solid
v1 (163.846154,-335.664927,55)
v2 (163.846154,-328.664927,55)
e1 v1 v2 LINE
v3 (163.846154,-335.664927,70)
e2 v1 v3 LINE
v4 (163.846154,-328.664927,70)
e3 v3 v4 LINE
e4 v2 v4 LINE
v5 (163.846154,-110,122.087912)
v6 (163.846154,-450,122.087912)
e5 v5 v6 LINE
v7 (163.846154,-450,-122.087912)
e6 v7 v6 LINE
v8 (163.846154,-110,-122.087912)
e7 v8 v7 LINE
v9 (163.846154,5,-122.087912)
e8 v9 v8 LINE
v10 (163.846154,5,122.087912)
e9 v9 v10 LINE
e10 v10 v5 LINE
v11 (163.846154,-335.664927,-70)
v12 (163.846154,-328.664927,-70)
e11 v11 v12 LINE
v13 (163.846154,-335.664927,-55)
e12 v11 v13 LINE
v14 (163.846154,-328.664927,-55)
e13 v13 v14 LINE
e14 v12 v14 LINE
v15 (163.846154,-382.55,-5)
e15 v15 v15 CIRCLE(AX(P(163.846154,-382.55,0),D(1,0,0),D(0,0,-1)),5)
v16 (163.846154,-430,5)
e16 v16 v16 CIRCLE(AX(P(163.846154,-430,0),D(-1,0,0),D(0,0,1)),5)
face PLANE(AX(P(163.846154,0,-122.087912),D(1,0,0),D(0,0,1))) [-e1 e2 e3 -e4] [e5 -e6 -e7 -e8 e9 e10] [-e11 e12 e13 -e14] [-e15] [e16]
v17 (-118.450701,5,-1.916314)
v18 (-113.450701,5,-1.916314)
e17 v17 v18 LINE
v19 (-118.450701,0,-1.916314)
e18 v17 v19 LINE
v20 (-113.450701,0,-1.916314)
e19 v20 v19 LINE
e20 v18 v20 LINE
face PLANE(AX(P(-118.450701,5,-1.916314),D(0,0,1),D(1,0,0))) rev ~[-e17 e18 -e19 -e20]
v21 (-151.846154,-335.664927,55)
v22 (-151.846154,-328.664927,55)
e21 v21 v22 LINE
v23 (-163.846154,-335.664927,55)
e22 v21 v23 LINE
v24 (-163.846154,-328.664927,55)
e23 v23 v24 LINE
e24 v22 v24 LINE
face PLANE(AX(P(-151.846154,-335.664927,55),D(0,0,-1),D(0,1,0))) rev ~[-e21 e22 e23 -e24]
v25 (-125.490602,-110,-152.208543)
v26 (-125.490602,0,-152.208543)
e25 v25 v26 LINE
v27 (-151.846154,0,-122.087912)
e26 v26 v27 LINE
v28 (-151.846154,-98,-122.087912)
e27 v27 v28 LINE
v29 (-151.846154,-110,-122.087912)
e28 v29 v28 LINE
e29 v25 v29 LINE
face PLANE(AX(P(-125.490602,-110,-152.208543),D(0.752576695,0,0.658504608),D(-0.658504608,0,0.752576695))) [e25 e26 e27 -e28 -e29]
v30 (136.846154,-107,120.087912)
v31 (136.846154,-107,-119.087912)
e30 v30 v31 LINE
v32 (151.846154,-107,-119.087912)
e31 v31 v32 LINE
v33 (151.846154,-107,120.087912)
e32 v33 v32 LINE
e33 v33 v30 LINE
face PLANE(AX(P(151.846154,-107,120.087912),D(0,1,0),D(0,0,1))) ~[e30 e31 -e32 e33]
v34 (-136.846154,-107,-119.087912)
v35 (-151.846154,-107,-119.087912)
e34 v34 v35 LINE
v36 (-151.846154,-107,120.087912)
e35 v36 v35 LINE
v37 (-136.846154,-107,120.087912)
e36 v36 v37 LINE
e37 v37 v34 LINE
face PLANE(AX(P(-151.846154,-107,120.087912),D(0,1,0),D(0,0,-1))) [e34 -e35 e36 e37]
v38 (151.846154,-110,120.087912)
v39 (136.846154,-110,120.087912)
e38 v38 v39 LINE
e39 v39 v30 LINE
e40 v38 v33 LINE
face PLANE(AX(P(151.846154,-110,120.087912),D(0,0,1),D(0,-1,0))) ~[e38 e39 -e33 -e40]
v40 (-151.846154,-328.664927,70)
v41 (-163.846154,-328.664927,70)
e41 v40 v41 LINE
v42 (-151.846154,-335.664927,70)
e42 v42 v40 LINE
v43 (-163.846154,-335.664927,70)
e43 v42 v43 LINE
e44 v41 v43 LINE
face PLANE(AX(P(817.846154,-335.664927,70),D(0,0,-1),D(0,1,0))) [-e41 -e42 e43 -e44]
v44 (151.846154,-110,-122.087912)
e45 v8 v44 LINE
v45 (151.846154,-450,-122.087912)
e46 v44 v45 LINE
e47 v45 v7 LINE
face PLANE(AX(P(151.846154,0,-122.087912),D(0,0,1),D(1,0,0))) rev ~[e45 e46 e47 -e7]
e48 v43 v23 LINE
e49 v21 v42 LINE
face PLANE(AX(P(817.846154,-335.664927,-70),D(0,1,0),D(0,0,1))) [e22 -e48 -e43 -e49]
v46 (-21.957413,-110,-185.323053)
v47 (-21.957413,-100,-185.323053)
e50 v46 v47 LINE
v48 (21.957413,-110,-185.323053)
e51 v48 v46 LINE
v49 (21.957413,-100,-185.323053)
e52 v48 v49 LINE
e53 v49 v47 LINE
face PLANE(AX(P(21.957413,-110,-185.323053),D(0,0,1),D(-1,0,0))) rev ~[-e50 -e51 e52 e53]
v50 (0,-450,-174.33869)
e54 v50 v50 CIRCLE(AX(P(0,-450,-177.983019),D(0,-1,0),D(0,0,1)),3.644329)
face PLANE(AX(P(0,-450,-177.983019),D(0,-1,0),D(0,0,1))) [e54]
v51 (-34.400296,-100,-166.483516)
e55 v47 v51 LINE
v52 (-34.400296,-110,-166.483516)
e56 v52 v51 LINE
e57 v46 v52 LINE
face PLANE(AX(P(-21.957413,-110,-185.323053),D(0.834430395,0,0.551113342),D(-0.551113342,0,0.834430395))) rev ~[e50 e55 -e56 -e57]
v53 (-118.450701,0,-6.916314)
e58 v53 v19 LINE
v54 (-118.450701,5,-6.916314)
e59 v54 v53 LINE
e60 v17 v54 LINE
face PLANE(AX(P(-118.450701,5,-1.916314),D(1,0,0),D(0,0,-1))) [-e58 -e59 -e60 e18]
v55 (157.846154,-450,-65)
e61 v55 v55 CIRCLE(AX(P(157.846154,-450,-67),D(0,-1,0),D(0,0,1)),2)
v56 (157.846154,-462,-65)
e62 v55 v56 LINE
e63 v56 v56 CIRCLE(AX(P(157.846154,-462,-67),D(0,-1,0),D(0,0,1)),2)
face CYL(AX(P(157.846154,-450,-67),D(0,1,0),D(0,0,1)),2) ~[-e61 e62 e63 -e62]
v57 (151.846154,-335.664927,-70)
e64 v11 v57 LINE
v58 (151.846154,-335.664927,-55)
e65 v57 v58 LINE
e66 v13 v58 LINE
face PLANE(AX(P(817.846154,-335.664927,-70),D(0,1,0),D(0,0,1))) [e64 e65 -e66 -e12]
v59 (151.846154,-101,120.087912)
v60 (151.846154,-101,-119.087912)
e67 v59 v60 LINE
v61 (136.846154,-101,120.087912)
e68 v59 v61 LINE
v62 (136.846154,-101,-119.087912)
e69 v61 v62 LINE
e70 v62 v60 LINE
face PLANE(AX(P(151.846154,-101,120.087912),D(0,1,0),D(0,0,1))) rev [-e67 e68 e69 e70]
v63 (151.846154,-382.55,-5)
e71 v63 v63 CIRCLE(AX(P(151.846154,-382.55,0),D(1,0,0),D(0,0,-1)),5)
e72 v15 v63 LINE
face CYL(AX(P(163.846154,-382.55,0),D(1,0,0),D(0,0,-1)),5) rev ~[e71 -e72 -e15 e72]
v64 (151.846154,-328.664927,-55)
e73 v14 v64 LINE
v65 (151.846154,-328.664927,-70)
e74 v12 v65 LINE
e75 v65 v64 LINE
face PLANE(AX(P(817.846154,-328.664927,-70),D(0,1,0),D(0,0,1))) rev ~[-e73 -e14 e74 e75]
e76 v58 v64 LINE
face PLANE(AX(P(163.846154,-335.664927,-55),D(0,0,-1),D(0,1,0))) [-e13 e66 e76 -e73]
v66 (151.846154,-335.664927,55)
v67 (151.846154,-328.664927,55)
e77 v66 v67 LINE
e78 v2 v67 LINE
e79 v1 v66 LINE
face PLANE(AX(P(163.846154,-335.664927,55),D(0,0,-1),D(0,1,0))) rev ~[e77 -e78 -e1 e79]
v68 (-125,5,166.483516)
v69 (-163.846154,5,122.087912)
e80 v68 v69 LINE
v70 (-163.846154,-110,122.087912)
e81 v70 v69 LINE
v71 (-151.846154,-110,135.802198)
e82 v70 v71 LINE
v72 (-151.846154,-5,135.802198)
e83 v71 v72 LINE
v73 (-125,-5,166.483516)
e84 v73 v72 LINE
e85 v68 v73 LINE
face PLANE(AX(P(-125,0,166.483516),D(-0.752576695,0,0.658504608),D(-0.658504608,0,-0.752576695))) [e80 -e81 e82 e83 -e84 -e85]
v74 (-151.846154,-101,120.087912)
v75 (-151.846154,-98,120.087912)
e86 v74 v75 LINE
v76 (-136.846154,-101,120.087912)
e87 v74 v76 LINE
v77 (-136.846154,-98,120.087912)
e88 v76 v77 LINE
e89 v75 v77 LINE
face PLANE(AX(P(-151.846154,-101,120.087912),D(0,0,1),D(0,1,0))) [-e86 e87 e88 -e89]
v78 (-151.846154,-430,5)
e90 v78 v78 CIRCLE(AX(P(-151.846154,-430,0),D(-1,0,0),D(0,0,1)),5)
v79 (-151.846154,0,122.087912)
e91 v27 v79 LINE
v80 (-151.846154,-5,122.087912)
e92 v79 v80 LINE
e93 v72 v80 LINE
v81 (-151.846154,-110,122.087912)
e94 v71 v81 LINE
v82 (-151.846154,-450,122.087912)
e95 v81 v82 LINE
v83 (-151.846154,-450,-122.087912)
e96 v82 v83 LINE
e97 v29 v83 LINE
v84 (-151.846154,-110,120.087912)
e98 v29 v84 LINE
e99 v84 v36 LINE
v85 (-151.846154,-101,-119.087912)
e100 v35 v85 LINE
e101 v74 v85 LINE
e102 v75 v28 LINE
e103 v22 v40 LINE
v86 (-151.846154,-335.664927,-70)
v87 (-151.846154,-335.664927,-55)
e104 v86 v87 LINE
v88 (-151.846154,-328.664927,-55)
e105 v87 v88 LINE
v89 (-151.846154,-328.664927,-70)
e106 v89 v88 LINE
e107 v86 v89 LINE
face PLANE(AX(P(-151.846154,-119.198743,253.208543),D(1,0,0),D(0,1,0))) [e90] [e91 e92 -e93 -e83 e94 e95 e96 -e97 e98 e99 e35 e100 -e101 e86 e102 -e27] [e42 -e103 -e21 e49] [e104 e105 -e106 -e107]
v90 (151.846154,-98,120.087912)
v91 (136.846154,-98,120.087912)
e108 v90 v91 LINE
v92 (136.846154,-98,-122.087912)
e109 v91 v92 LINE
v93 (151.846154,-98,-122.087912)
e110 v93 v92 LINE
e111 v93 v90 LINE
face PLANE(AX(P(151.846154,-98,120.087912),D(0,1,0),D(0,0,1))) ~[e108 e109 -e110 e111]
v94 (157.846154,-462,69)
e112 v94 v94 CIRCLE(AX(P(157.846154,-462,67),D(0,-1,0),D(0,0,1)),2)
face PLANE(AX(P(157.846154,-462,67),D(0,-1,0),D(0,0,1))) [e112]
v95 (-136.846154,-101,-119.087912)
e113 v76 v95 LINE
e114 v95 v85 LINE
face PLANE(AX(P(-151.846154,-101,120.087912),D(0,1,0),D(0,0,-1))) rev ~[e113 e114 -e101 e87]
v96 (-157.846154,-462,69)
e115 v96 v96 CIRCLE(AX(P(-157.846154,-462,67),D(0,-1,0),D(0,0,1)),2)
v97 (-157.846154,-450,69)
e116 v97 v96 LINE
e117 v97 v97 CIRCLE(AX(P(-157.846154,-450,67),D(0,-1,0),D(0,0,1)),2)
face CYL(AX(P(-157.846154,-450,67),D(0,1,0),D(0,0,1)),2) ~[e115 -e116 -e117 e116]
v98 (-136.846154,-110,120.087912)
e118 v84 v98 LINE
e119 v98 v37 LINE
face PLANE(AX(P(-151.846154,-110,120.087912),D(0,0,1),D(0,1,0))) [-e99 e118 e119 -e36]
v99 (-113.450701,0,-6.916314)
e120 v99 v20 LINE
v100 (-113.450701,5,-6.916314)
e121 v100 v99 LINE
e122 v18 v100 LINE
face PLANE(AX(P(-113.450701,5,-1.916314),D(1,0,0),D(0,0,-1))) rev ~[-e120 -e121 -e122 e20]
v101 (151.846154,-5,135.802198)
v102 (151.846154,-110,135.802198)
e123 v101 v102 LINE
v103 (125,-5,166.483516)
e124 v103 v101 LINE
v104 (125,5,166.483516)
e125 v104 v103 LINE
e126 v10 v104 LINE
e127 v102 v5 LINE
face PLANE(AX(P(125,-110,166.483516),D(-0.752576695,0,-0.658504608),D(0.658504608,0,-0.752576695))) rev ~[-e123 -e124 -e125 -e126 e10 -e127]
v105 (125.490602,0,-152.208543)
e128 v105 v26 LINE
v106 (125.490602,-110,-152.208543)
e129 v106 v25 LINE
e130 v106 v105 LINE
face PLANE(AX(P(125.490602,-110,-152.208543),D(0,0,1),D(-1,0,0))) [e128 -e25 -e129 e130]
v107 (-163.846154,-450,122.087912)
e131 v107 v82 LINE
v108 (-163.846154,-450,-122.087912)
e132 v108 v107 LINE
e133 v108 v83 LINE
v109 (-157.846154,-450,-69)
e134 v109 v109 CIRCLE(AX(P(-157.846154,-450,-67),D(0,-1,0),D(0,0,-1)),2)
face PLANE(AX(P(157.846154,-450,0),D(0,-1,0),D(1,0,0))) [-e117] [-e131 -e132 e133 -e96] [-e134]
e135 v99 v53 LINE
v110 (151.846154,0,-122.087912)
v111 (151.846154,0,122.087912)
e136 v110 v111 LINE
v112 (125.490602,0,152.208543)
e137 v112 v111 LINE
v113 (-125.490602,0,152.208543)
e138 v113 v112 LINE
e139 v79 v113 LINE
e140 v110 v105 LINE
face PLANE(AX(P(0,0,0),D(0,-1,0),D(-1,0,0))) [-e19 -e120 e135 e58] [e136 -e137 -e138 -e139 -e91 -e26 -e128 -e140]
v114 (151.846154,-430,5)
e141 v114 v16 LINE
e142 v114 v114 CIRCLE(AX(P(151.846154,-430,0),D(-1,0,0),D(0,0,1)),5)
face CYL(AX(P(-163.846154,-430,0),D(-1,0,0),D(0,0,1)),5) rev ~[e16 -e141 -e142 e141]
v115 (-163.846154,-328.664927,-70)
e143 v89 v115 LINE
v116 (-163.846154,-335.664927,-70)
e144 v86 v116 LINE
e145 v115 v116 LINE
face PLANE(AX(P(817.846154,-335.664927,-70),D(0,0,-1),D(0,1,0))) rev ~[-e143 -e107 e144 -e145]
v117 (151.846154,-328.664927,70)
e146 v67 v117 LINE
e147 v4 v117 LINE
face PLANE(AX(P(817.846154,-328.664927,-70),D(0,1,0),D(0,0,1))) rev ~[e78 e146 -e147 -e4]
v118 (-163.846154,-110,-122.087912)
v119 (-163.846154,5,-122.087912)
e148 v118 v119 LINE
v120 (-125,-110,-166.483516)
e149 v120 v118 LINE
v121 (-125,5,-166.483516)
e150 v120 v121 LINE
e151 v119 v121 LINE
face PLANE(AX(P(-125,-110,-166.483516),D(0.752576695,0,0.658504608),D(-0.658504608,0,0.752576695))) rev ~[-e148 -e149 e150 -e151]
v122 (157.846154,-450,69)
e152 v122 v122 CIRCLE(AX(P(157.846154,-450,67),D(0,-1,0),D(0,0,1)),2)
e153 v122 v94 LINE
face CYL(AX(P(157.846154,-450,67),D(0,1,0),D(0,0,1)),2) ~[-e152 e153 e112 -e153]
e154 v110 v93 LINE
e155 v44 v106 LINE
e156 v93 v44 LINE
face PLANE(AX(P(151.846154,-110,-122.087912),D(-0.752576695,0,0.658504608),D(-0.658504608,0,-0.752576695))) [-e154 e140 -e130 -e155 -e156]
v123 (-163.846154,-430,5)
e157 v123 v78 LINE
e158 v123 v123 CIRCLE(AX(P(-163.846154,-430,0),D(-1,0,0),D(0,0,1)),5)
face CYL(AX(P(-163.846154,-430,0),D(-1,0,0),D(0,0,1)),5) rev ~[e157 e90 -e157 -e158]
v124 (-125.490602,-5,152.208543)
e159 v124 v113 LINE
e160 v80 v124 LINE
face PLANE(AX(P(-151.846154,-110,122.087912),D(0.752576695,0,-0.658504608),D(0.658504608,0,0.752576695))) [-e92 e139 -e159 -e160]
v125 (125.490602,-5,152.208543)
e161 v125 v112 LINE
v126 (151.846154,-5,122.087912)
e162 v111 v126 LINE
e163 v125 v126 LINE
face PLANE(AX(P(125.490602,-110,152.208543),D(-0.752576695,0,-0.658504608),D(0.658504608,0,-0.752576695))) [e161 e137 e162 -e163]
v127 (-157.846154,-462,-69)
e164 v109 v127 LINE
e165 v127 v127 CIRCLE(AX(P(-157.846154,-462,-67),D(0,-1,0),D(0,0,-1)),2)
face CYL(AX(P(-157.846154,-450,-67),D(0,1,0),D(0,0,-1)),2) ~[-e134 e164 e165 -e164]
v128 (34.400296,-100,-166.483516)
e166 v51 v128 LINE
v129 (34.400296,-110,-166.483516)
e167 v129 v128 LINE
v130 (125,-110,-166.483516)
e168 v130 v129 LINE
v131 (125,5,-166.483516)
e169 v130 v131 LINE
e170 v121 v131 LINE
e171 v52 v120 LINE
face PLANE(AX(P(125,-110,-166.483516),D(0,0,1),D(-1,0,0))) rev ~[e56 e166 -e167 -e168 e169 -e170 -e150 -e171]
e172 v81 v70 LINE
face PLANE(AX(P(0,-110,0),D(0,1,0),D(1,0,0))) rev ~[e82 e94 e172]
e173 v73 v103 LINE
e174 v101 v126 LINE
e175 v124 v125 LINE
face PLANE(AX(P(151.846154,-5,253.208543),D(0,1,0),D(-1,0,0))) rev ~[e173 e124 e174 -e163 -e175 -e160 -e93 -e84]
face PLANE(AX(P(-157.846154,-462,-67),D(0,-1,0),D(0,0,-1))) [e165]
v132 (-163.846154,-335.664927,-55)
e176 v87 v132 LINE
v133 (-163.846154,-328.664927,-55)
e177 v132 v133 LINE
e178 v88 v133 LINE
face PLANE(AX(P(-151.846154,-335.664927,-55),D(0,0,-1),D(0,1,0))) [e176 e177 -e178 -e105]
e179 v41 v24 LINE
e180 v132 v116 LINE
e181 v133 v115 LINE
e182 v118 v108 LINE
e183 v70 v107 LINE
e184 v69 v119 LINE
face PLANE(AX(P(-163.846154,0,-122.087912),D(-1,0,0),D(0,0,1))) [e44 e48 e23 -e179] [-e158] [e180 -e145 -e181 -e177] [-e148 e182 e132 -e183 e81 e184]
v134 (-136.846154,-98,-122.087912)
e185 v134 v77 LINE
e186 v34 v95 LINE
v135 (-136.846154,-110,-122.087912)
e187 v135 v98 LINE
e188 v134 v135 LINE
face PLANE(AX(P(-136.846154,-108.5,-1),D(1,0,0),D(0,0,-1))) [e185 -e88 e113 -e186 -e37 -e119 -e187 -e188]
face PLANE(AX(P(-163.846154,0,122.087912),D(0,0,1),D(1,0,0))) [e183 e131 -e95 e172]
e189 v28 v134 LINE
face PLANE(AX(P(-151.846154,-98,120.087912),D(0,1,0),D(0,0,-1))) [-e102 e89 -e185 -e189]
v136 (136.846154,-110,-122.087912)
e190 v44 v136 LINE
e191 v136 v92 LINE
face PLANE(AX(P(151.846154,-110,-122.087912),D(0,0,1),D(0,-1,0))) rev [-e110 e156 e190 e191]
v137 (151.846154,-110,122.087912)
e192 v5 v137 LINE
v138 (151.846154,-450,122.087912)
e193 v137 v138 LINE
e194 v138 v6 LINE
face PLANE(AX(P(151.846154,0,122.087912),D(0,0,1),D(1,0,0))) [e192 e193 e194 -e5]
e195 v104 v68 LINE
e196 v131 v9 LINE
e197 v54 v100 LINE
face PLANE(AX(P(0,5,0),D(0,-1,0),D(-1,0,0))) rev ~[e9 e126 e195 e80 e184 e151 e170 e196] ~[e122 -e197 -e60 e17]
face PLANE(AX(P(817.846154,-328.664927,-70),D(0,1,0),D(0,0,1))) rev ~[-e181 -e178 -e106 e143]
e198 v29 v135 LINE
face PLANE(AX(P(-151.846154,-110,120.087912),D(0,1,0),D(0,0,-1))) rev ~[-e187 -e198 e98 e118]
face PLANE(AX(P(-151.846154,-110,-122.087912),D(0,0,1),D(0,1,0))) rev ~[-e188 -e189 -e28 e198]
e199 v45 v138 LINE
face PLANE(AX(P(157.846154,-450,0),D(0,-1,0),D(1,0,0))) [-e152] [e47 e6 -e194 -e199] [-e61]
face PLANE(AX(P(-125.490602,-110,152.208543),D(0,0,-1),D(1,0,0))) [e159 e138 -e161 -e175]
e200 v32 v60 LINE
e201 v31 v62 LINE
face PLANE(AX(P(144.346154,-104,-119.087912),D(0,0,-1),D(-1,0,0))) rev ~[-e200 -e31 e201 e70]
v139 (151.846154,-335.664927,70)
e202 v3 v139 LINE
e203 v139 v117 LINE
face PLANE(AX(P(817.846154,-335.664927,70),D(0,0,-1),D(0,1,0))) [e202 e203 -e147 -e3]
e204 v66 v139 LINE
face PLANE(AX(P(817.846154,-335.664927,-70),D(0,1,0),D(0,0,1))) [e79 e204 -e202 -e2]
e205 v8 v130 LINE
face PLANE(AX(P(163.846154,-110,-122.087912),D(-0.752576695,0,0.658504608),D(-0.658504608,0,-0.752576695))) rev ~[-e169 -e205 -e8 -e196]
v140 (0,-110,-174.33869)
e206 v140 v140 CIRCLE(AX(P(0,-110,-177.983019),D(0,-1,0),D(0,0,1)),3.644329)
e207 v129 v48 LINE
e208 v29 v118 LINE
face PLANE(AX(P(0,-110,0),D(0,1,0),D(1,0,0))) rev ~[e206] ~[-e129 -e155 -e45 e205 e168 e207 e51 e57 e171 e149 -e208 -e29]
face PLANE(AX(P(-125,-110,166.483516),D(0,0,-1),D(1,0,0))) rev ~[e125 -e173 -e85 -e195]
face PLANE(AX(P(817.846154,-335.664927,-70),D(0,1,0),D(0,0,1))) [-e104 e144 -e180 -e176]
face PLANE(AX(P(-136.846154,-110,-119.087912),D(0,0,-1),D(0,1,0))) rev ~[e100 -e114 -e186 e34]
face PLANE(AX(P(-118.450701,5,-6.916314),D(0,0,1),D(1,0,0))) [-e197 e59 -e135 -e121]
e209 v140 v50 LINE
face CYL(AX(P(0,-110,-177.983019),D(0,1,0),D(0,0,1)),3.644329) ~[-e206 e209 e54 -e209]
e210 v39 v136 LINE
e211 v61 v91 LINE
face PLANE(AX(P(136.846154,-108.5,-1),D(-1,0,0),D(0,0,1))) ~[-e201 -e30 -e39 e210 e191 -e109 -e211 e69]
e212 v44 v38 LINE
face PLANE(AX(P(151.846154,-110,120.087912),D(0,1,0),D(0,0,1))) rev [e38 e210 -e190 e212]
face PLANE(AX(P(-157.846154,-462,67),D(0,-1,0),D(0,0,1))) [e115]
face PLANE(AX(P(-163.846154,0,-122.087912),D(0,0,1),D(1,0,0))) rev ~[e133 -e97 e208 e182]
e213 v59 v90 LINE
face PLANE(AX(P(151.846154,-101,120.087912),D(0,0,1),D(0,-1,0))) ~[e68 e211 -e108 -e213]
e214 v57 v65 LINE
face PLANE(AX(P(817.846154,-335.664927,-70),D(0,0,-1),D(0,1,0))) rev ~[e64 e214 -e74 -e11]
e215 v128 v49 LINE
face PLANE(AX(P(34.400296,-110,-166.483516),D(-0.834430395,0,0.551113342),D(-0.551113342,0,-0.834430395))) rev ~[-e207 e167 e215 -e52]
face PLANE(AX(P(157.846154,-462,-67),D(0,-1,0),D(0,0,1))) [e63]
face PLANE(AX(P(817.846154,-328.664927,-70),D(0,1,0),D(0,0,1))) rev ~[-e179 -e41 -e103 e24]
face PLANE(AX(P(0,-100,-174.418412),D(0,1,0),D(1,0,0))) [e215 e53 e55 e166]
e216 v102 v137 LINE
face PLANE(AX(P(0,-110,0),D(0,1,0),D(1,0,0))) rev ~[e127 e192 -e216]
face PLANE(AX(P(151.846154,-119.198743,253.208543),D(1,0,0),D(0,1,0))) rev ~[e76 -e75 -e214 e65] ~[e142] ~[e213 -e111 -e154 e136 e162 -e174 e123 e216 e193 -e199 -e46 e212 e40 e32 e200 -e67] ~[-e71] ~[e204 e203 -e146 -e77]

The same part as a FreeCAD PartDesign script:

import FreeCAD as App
import Part
import Sketcher
from FreeCAD import Vector

doc = App.newDocument("Part")
body = doc.addObject("PartDesign::Body", "Body")

sketch1 = body.newObject("Sketcher::SketchObject", "Sketch")
sketch1.AttachmentSupport = (doc.getObject("XZ_Plane"), [""])
sketch1.MapMode = "FlatFace"
sketch1.addGeometry([
    Part.LineSegment(Vector(125, -166, 0), Vector(-125, -166, 0)),
    Part.LineSegment(Vector(-125, -166, 0), Vector(-164, -122, 0)),
    Part.LineSegment(Vector(-164, -122, 0), Vector(-164, 122, 0)),
    Part.LineSegment(Vector(-164, 122, 0), Vector(-125, 166, 0)),
    Part.LineSegment(Vector(-125, 166, 0), Vector(125, 166, 0)),
    Part.LineSegment(Vector(125, 166, 0), Vector(164, 122, 0)),
    Part.LineSegment(Vector(164, 122, 0), Vector(164, -122, 0)),
    Part.LineSegment(Vector(164, -122, 0), Vector(125, -166, 0)),
], False)
sketch1.addConstraint([
    Sketcher.Constraint("Coincident", 0, 2, 1, 1),
    Sketcher.Constraint("Coincident", 1, 2, 2, 1),
    Sketcher.Constraint("Coincident", 2, 2, 3, 1),
    Sketcher.Constraint("Coincident", 3, 2, 4, 1),
    Sketcher.Constraint("Coincident", 4, 2, 5, 1),
    Sketcher.Constraint("Coincident", 5, 2, 6, 1),
    Sketcher.Constraint("Coincident", 6, 2, 7, 1),
    Sketcher.Constraint("Coincident", 7, 2, 0, 1),
    Sketcher.Constraint("Horizontal", 0),
    Sketcher.Constraint("Vertical", 2),
    Sketcher.Constraint("Horizontal", 4),
    Sketcher.Constraint("Vertical", 6),
    Sketcher.Constraint("Symmetric", 0, 2, 4, 2, -1, 1),
    Sketcher.Constraint("Symmetric", 1, 2, 5, 2, -1, 1),
    Sketcher.Constraint("Parallel", 3, 7),
    Sketcher.Constraint("Horizontal", 2, 2, 5, 2),
    Sketcher.Constraint("Horizontal", 1, 2, 6, 2),
    Sketcher.Constraint("Vertical", 0, 2, 3, 2),
    Sketcher.Constraint("DistanceX", 0, 2, 0, 1, 250.0),
    Sketcher.Constraint("Distance", 1, 58.991469),
    Sketcher.Constraint("DistanceY", 2, 1, 2, 2, 244.175824),
    Sketcher.Constraint("DistanceY", 0, 2, 2, 2, 288.571429),
])
pad1 = body.newObject("PartDesign::Pad", "Pad")
pad1.Profile = sketch1
pad1.Length = 5
pad1.Reversed = True

sketch2 = body.newObject("Sketcher::SketchObject", "Sketch001")
sketch2.AttachmentSupport = (doc.getObject("XZ_Plane"), [""])
sketch2.MapMode = "FlatFace"
sketch2.addGeometry([
    Part.LineSegment(Vector(-164, 122, 0), Vector(-164, -122, 0)),
    Part.LineSegment(Vector(-164, -122, 0), Vector(-152, -122, 0)),
    Part.LineSegment(Vector(-152, -122, 0), Vector(-152, 122, 0)),
    Part.LineSegment(Vector(-152, 122, 0), Vector(-164, 122, 0)),
    Part.LineSegment(Vector(152, 122, 0), Vector(152, -122, 0)),
    Part.LineSegment(Vector(152, -122, 0), Vector(164, -122, 0)),
    Part.LineSegment(Vector(164, -122, 0), Vector(164, 122, 0)),
    Part.LineSegment(Vector(164, 122, 0), Vector(152, 122, 0)),
], False)
sketch2.addConstraint([
    Sketcher.Constraint("Coincident", 0, 2, 1, 1),
    Sketcher.Constraint("Coincident", 1, 2, 2, 1),
    Sketcher.Constraint("Coincident", 2, 2, 3, 1),
    Sketcher.Constraint("Coincident", 3, 2, 0, 1),
    Sketcher.Constraint("Coincident", 4, 2, 5, 1),
    Sketcher.Constraint("Coincident", 5, 2, 6, 1),
    Sketcher.Constraint("Coincident", 6, 2, 7, 1),
    Sketcher.Constraint("Coincident", 7, 2, 4, 1),
    Sketcher.Constraint("Vertical", 0),
    Sketcher.Constraint("Horizontal", 1),
    Sketcher.Constraint("Vertical", 2),
    Sketcher.Constraint("Horizontal", 3),
    Sketcher.Constraint("Vertical", 4),
    Sketcher.Constraint("Horizontal", 5),
    Sketcher.Constraint("Vertical", 6),
    Sketcher.Constraint("Horizontal", 7),
    Sketcher.Constraint("Symmetric", 2, 2, 4, 2, -1, 1),
    Sketcher.Constraint("Symmetric", 0, 2, 6, 2, -1, 1),
    Sketcher.Constraint("Horizontal", 1, 2, 4, 2),
    Sketcher.Constraint("DistanceX", 1, 1, 1, 2, 12.0),
    Sketcher.Constraint("DistanceY", 0, 2, 0, 1, 244.175824),
    Sketcher.Constraint("DistanceX", 0, 2, -1, 1, 163.846154),
])
pad2 = body.newObject("PartDesign::Pad", "Pad001")
pad2.Profile = sketch2
pad2.Length = 450

sketch3 = body.newObject("Sketcher::SketchObject", "Sketch002")
sketch3.AttachmentSupport = (doc.getObject("XZ_Plane"), [""])
sketch3.MapMode = "FlatFace"
sketch3.AttachmentOffset = App.Placement(Vector(0, 0, 450), App.Rotation())
sketch3.addGeometry([
    Part.Circle(Vector(-157.8, 67, 0), Vector(0, 0, 1), 2),
    Part.Circle(Vector(-157.8, -67, 0), Vector(0, 0, 1), 2),
    Part.Circle(Vector(157.8, -67, 0), Vector(0, 0, 1), 2),
    Part.Circle(Vector(157.8, 67, 0), Vector(0, 0, 1), 2),
], False)
sketch3.addConstraint([
    Sketcher.Constraint("Equal", 0, 1),
    Sketcher.Constraint("Equal", 1, 2),
    Sketcher.Constraint("Equal", 2, 3),
    Sketcher.Constraint("Symmetric", 0, 3, 2, 3, -1, 1),
    Sketcher.Constraint("Symmetric", 1, 3, 3, 3, -1, 1),
    Sketcher.Constraint("Symmetric", 1, 3, 2, 3, -2),
    Sketcher.Constraint("Diameter", 0, 4.0),
    Sketcher.Constraint("DistanceY", -1, 1, 0, 3, 67.0),
    Sketcher.Constraint("DistanceX", 0, 3, -1, 1, 157.846154),
])
pad3 = body.newObject("PartDesign::Pad", "Pad002")
pad3.Profile = sketch3
pad3.Length = 12

sketch4 = body.newObject("Sketcher::SketchObject", "Sketch003")
sketch4.AttachmentSupport = (doc.getObject("YZ_Plane"), [""])
sketch4.MapMode = "FlatFace"
sketch4.AttachmentOffset = App.Placement(Vector(0, 0, -163.846154), App.Rotation())
sketch4.addGeometry(Part.Circle(Vector(-430, 0, 0), Vector(0, 0, 1), 5), False)
sketch4.addConstraint([
    Sketcher.Constraint("PointOnObject", 0, 3, -1),
    Sketcher.Constraint("Diameter", 0, 10.0),
    Sketcher.Constraint("DistanceX", 0, 3, -1, 1, 430.0),
])
pocket1 = body.newObject("PartDesign::Pocket", "Pocket")
pocket1.Profile = sketch4
pocket1.Length = 416
pocket1.Reversed = True

sketch5 = body.newObject("Sketcher::SketchObject", "Sketch004")
sketch5.AttachmentSupport = (doc.getObject("XZ_Plane"), [""])
sketch5.MapMode = "FlatFace"
sketch5.AttachmentOffset = App.Placement(Vector(0, 0, 110), App.Rotation())
sketch5.addGeometry([
    Part.LineSegment(Vector(125, -166, 0), Vector(164, -122, 0)),
    Part.LineSegment(Vector(164, -122, 0), Vector(164, 122, 0)),
    Part.LineSegment(Vector(164, 122, 0), Vector(125, 166, 0)),
    Part.LineSegment(Vector(125, 166, 0), Vector(-125, 166, 0)),
    Part.LineSegment(Vector(-125, 166, 0), Vector(-164, 122, 0)),
    Part.LineSegment(Vector(-164, 122, 0), Vector(-164, -122, 0)),
    Part.LineSegment(Vector(-164, -122, 0), Vector(-125, -166, 0)),
    Part.LineSegment(Vector(-125, -166, 0), Vector(125, -166, 0)),
    Part.LineSegment(Vector(152, 122, 0), Vector(152, -122, 0)),
    Part.LineSegment(Vector(152, -122, 0), Vector(125, -152, 0)),
    Part.LineSegment(Vector(125, -152, 0), Vector(-125, -152, 0)),
    Part.LineSegment(Vector(-125, -152, 0), Vector(-152, -122, 0)),
    Part.LineSegment(Vector(-152, -122, 0), Vector(-152, 122, 0)),
    Part.LineSegment(Vector(-152, 122, 0), Vector(-125, 152, 0)),
    Part.LineSegment(Vector(-125, 152, 0), Vector(125, 152, 0)),
    Part.LineSegment(Vector(125, 152, 0), Vector(152, 122, 0)),
], False)
sketch5.addConstraint([
    Sketcher.Constraint("Coincident", 0, 2, 1, 1),
    Sketcher.Constraint("Coincident", 1, 2, 2, 1),
    Sketcher.Constraint("Coincident", 2, 2, 3, 1),
    Sketcher.Constraint("Coincident", 3, 2, 4, 1),
    Sketcher.Constraint("Coincident", 4, 2, 5, 1),
    Sketcher.Constraint("Coincident", 5, 2, 6, 1),
    Sketcher.Constraint("Coincident", 6, 2, 7, 1),
    Sketcher.Constraint("Coincident", 7, 2, 0, 1),
    Sketcher.Constraint("Coincident", 8, 2, 9, 1),
    Sketcher.Constraint("Coincident", 9, 2, 10, 1),
    Sketcher.Constraint("Coincident", 10, 2, 11, 1),
    Sketcher.Constraint("Coincident", 11, 2, 12, 1),
    Sketcher.Constraint("Coincident", 12, 2, 13, 1),
    Sketcher.Constraint("Coincident", 13, 2, 14, 1),
    Sketcher.Constraint("Coincident", 14, 2, 15, 1),
    Sketcher.Constraint("Coincident", 15, 2, 8, 1),
    Sketcher.Constraint("Vertical", 1),
    Sketcher.Constraint("Horizontal", 3),
    Sketcher.Constraint("Vertical", 5),
    Sketcher.Constraint("Horizontal", 7),
    Sketcher.Constraint("Vertical", 8),
    Sketcher.Constraint("Horizontal", 10),
    Sketcher.Constraint("Vertical", 12),
    Sketcher.Constraint("Horizontal", 14),
    Sketcher.Constraint("Symmetric", 0, 2, 4, 2, -1, 1),
    Sketcher.Constraint("Symmetric", 2, 2, 6, 2, -1, 1),
    Sketcher.Constraint("Symmetric", 8, 2, 12, 2, -1, 1),
    Sketcher.Constraint("Symmetric", 9, 2, 13, 2, -1, 1),
    Sketcher.Constraint("Parallel", 0, 4),
    Sketcher.Constraint("Parallel", 2, 6),
    Sketcher.Constraint("Parallel", 4, 9),
    Sketcher.Constraint("Parallel", 6, 11),
    Sketcher.Constraint("Parallel", 11, 15),
    Sketcher.Constraint("Horizontal", 1, 2, 4, 2),
    Sketcher.Constraint("Horizontal", 5, 2, 8, 2),
    Sketcher.Constraint("Horizontal", 8, 2, 11, 2),
    Sketcher.Constraint("Horizontal", 12, 2, 15, 2),
    Sketcher.Constraint("Vertical", 3, 2, 6, 2),
    Sketcher.Constraint("DistanceX", 3, 2, 3, 1, 250.0),
    Sketcher.Constraint("DistanceX", 8, 2, 0, 2, 12.0),
    Sketcher.Constraint("DistanceX", -1, 1, 9, 2, 125.490602),
    Sketcher.Constraint("Distance", 0, 58.991469),
    Sketcher.Constraint("DistanceY", 1, 1, 1, 2, 244.175824),
    Sketcher.Constraint("DistanceY", 0, 2, 2, 2, 288.571429),
])
pad4 = body.newObject("PartDesign::Pad", "Pad003")
pad4.Profile = sketch5
pad4.Length = 110
pad4.Reversed = True

sketch6 = body.newObject("Sketcher::SketchObject", "Sketch005")
sketch6.AttachmentSupport = (doc.getObject("XY_Plane"), [""])
sketch6.MapMode = "FlatFace"
sketch6.AttachmentOffset = App.Placement(Vector(0, 0, 152.208543), App.Rotation())
sketch6.addGeometry([
    Part.LineSegment(Vector(152, -5, 0), Vector(152, -119, 0)),
    Part.LineSegment(Vector(152, -119, 0), Vector(-152, -119, 0)),
    Part.LineSegment(Vector(-152, -119, 0), Vector(-152, -5, 0)),
    Part.LineSegment(Vector(-152, -5, 0), Vector(152, -5, 0)),
], False)
sketch6.addConstraint([
    Sketcher.Constraint("Coincident", 0, 2, 1, 1),
    Sketcher.Constraint("Coincident", 1, 2, 2, 1),
    Sketcher.Constraint("Coincident", 2, 2, 3, 1),
    Sketcher.Constraint("Coincident", 3, 2, 0, 1),
    Sketcher.Constraint("Vertical", 0),
    Sketcher.Constraint("Horizontal", 1),
    Sketcher.Constraint("Vertical", 2),
    Sketcher.Constraint("Horizontal", 3),
    Sketcher.Constraint("DistanceY", 2, 2, -1, 1, 5.0),
    Sketcher.Constraint("DistanceX", 1, 2, 1, 1, 303.692308),
    Sketcher.Constraint("DistanceY", 0, 2, 0, 1, 114.198743),
    Sketcher.Constraint("DistanceX", -1, 1, 0, 2, 151.846154),
])
pocket2 = body.newObject("PartDesign::Pocket", "Pocket001")
pocket2.Profile = sketch6
pocket2.Type = "TwoLengths"
pocket2.Length = 148
pocket2.Length2 = 101

sketch7 = body.newObject("Sketcher::SketchObject", "Sketch006")
sketch7.AttachmentSupport = (doc.getObject("YZ_Plane"), [""])
sketch7.MapMode = "FlatFace"
sketch7.AttachmentOffset = App.Placement(Vector(0, 0, 151.846154), App.Rotation())
sketch7.addGeometry([
    Part.LineSegment(Vector(-329, -70, 0), Vector(-336, -70, 0)),
    Part.LineSegment(Vector(-336, -70, 0), Vector(-336, 70, 0)),
    Part.LineSegment(Vector(-336, 70, 0), Vector(-329, 70, 0)),
    Part.LineSegment(Vector(-329, 70, 0), Vector(-329, -70, 0)),
], False)
sketch7.addConstraint([
    Sketcher.Constraint("Coincident", 0, 2, 1, 1),
    Sketcher.Constraint("Coincident", 1, 2, 2, 1),
    Sketcher.Constraint("Coincident", 2, 2, 3, 1),
    Sketcher.Constraint("Coincident", 3, 2, 0, 1),
    Sketcher.Constraint("Horizontal", 0),
    Sketcher.Constraint("Vertical", 1),
    Sketcher.Constraint("Horizontal", 2),
    Sketcher.Constraint("Vertical", 3),
    Sketcher.Constraint("DistanceX", 0, 2, 0, 1, 7.0),
    Sketcher.Constraint("DistanceY", 1, 1, 1, 2, 140.0),
    Sketcher.Constraint("DistanceY", 0, 2, -1, 1, 70.0),
    Sketcher.Constraint("DistanceX", 0, 2, -1, 1, 335.664927),
])
pocket3 = body.newObject("PartDesign::Pocket", "Pocket002")
pocket3.Profile = sketch7
pocket3.Type = "ThroughAll"
pocket3.Midplane = True

sketch8 = body.newObject("Sketcher::SketchObject", "Sketch007")
sketch8.AttachmentSupport = (doc.getObject("YZ_Plane"), [""])
sketch8.MapMode = "FlatFace"
sketch8.AttachmentOffset = App.Placement(Vector(0, 0, -151.846154), App.Rotation())
sketch8.addGeometry([
    Part.LineSegment(Vector(-107, 120.1, 0), Vector(-110, 120.1, 0)),
    Part.LineSegment(Vector(-110, 120.1, 0), Vector(-110, -122.1, 0)),
    Part.LineSegment(Vector(-110, -122.1, 0), Vector(-107, -122.1, 0)),
    Part.LineSegment(Vector(-107, -122.1, 0), Vector(-107, 120.1, 0)),
    Part.LineSegment(Vector(-98, 120.1, 0), Vector(-101, 120.1, 0)),
    Part.LineSegment(Vector(-101, 120.1, 0), Vector(-101, -122.1, 0)),
    Part.LineSegment(Vector(-101, -122.1, 0), Vector(-98, -122.1, 0)),
    Part.LineSegment(Vector(-98, -122.1, 0), Vector(-98, 120.1, 0)),
], False)
sketch8.addConstraint([
    Sketcher.Constraint("Coincident", 0, 2, 1, 1),
    Sketcher.Constraint("Coincident", 1, 2, 2, 1),
    Sketcher.Constraint("Coincident", 2, 2, 3, 1),
    Sketcher.Constraint("Coincident", 3, 2, 0, 1),
    Sketcher.Constraint("Coincident", 4, 2, 5, 1),
    Sketcher.Constraint("Coincident", 5, 2, 6, 1),
    Sketcher.Constraint("Coincident", 6, 2, 7, 1),
    Sketcher.Constraint("Coincident", 7, 2, 4, 1),
    Sketcher.Constraint("Horizontal", 0),
    Sketcher.Constraint("Vertical", 1),
    Sketcher.Constraint("Horizontal", 2),
    Sketcher.Constraint("Vertical", 3),
    Sketcher.Constraint("Horizontal", 4),
    Sketcher.Constraint("Vertical", 5),
    Sketcher.Constraint("Horizontal", 6),
    Sketcher.Constraint("Vertical", 7),
    Sketcher.Constraint("Horizontal", 3, 2, 4, 2),
    Sketcher.Constraint("Horizontal", 2, 2, 5, 2),
    Sketcher.Constraint("Equal", 2, 4),
    Sketcher.Constraint("DistanceX", 0, 2, 0, 1, 3.0),
    Sketcher.Constraint("DistanceX", 0, 2, -1, 1, 110.0),
    Sketcher.Constraint("DistanceX", 4, 2, -1, 1, 101.0),
    Sketcher.Constraint("DistanceY", 1, 2, 1, 1, 242.175824),
    Sketcher.Constraint("DistanceY", -1, 1, 0, 2, 120.087912),
])
pad5 = body.newObject("PartDesign::Pad", "Pad004")
pad5.Profile = sketch8
pad5.Length = 15

sketch9 = body.newObject("Sketcher::SketchObject", "Sketch008")
sketch9.AttachmentSupport = (doc.getObject("YZ_Plane"), [""])
sketch9.MapMode = "FlatFace"
sketch9.AttachmentOffset = App.Placement(Vector(0, 0, -136.846154), App.Rotation())
sketch9.addGeometry([
    Part.LineSegment(Vector(-98, -119.1, 0), Vector(-110, -119.1, 0)),
    Part.LineSegment(Vector(-110, -119.1, 0), Vector(-110, -122.1, 0)),
    Part.LineSegment(Vector(-110, -122.1, 0), Vector(-98, -122.1, 0)),
    Part.LineSegment(Vector(-98, -122.1, 0), Vector(-98, -119.1, 0)),
], False)
sketch9.addConstraint([
    Sketcher.Constraint("Coincident", 0, 2, 1, 1),
    Sketcher.Constraint("Coincident", 1, 2, 2, 1),
    Sketcher.Constraint("Coincident", 2, 2, 3, 1),
    Sketcher.Constraint("Coincident", 3, 2, 0, 1),
    Sketcher.Constraint("Horizontal", 0),
    Sketcher.Constraint("Vertical", 1),
    Sketcher.Constraint("Horizontal", 2),
    Sketcher.Constraint("Vertical", 3),
    Sketcher.Constraint("DistanceX", 0, 2, 0, 1, 12.0),
    Sketcher.Constraint("DistanceY", 1, 2, 1, 1, 3.0),
    Sketcher.Constraint("DistanceX", 0, 2, -1, 1, 110.0),
    Sketcher.Constraint("DistanceY", 0, 2, -1, 1, 119.087912),
])
pad6 = body.newObject("PartDesign::Pad", "Pad005")
pad6.Profile = sketch9
pad6.Length = 15
pad6.Reversed = True
doc.recompute()

mirrored = body.newObject("PartDesign::Mirrored", "Mirrored")
mirrored.Originals = [pad5]
mirrored.MirrorPlane = (doc.getObject("YZ_Plane"), [""])
body.Tip = mirrored

sketch10 = body.newObject("Sketcher::SketchObject", "Sketch009")
sketch10.AttachmentSupport = (doc.getObject("XY_Plane"), [""])
sketch10.MapMode = "FlatFace"
sketch10.AttachmentOffset = App.Placement(Vector(0, 0, -122.087912), App.Rotation())
sketch10.addGeometry([
    Part.LineSegment(Vector(152, -98, 0), Vector(152, -110, 0)),
    Part.LineSegment(Vector(152, -110, 0), Vector(137, -110, 0)),
    Part.LineSegment(Vector(137, -110, 0), Vector(137, -98, 0)),
    Part.LineSegment(Vector(137, -98, 0), Vector(152, -98, 0)),
], False)
sketch10.addConstraint([
    Sketcher.Constraint("Coincident", 0, 2, 1, 1),
    Sketcher.Constraint("Coincident", 1, 2, 2, 1),
    Sketcher.Constraint("Coincident", 2, 2, 3, 1),
    Sketcher.Constraint("Coincident", 3, 2, 0, 1),
    Sketcher.Constraint("Vertical", 0),
    Sketcher.Constraint("Horizontal", 1),
    Sketcher.Constraint("Vertical", 2),
    Sketcher.Constraint("Horizontal", 3),
    Sketcher.Constraint("DistanceX", 1, 2, 1, 1, 15.0),
    Sketcher.Constraint("DistanceY", 0, 2, 0, 1, 12.0),
    Sketcher.Constraint("DistanceY", 0, 2, -1, 1, 110.0),
    Sketcher.Constraint("DistanceX", -1, 1, 0, 2, 151.846154),
])
pad7 = body.newObject("PartDesign::Pad", "Pad006")
pad7.Profile = sketch10
pad7.Length = 3

sketch11 = body.newObject("Sketcher::SketchObject", "Sketch010")
sketch11.AttachmentSupport = (doc.getObject("YZ_Plane"), [""])
sketch11.MapMode = "FlatFace"
sketch11.AttachmentOffset = App.Placement(Vector(0, 0, -151.846154), App.Rotation())
sketch11.addGeometry([
    Part.LineSegment(Vector(-329, 55, 0), Vector(-336, 55, 0)),
    Part.LineSegment(Vector(-336, 55, 0), Vector(-336, -55, 0)),
    Part.LineSegment(Vector(-336, -55, 0), Vector(-329, -55, 0)),
    Part.LineSegment(Vector(-329, -55, 0), Vector(-329, 55, 0)),
], False)
sketch11.addConstraint([
    Sketcher.Constraint("Coincident", 0, 2, 1, 1),
    Sketcher.Constraint("Coincident", 1, 2, 2, 1),
    Sketcher.Constraint("Coincident", 2, 2, 3, 1),
    Sketcher.Constraint("Coincident", 3, 2, 0, 1),
    Sketcher.Constraint("Horizontal", 0),
    Sketcher.Constraint("Vertical", 1),
    Sketcher.Constraint("Horizontal", 2),
    Sketcher.Constraint("Vertical", 3),
    Sketcher.Constraint("DistanceX", 0, 2, 0, 1, 7.0),
    Sketcher.Constraint("DistanceY", 1, 2, 1, 1, 110.0),
    Sketcher.Constraint("DistanceY", -1, 1, 0, 2, 55.0),
    Sketcher.Constraint("DistanceX", 0, 2, -1, 1, 335.664927),
])
pad8 = body.newObject("PartDesign::Pad", "Pad007")
pad8.Profile = sketch11
pad8.Length = 12
pad8.Reversed = True

sketch12 = body.newObject("Sketcher::SketchObject", "Sketch011")
sketch12.AttachmentSupport = (doc.getObject("YZ_Plane"), [""])
sketch12.MapMode = "FlatFace"
sketch12.AttachmentOffset = App.Placement(Vector(0, 0, 163.846154), App.Rotation())
sketch12.addGeometry([
    Part.LineSegment(Vector(-329, 55, 0), Vector(-336, 55, 0)),
    Part.LineSegment(Vector(-336, 55, 0), Vector(-336, -55, 0)),
    Part.LineSegment(Vector(-336, -55, 0), Vector(-329, -55, 0)),
    Part.LineSegment(Vector(-329, -55, 0), Vector(-329, 55, 0)),
], False)
sketch12.addConstraint([
    Sketcher.Constraint("Coincident", 0, 2, 1, 1),
    Sketcher.Constraint("Coincident", 1, 2, 2, 1),
    Sketcher.Constraint("Coincident", 2, 2, 3, 1),
    Sketcher.Constraint("Coincident", 3, 2, 0, 1),
    Sketcher.Constraint("Horizontal", 0),
    Sketcher.Constraint("Vertical", 1),
    Sketcher.Constraint("Horizontal", 2),
    Sketcher.Constraint("Vertical", 3),
    Sketcher.Constraint("DistanceX", 0, 2, 0, 1, 7.0),
    Sketcher.Constraint("DistanceY", 1, 2, 1, 1, 110.0),
    Sketcher.Constraint("DistanceY", -1, 1, 0, 2, 55.0),
    Sketcher.Constraint("DistanceX", 0, 2, -1, 1, 335.664927),
])
pad9 = body.newObject("PartDesign::Pad", "Pad008")
pad9.Profile = sketch12
pad9.Length = 12
pad9.Reversed = True

sketch13 = body.newObject("Sketcher::SketchObject", "Sketch012")
sketch13.AttachmentSupport = (doc.getObject("YZ_Plane"), [""])
sketch13.MapMode = "FlatFace"
sketch13.AttachmentOffset = App.Placement(Vector(0, 0, 151.846154), App.Rotation())
sketch13.addGeometry([
    Part.LineSegment(Vector(-112, -88, 0), Vector(-450, -88, 0)),
    Part.LineSegment(Vector(-450, -88, 0), Vector(-450, -78, 0)),
    Part.LineSegment(Vector(-450, -78, 0), Vector(-112, -78, 0)),
    Part.LineSegment(Vector(-112, -78, 0), Vector(-112, -88, 0)),
], False)
sketch13.addConstraint([
    Sketcher.Constraint("Coincident", 0, 2, 1, 1),
    Sketcher.Constraint("Coincident", 1, 2, 2, 1),
    Sketcher.Constraint("Coincident", 2, 2, 3, 1),
    Sketcher.Constraint("Coincident", 3, 2, 0, 1),
    Sketcher.Constraint("Horizontal", 0),
    Sketcher.Constraint("Vertical", 1),
    Sketcher.Constraint("Horizontal", 2),
    Sketcher.Constraint("Vertical", 3),
    Sketcher.Constraint("DistanceX", 0, 2, 0, 1, 338.0),
    Sketcher.Constraint("DistanceY", 1, 1, 1, 2, 10.0),
    Sketcher.Constraint("DistanceX", 0, 2, -1, 1, 450.0),
    Sketcher.Constraint("DistanceY", 0, 2, -1, 1, 87.501488),
])
pad10 = body.newObject("PartDesign::Pad", "Pad009")
pad10.Profile = sketch13
pad10.Length = 303.692308
pad10.Reversed = True
doc.recompute()

mirrored2 = body.newObject("PartDesign::Mirrored", "Mirrored001")
mirrored2.Originals = [pad10]
mirrored2.MirrorPlane = (doc.getObject("XY_Plane"), [""])
body.Tip = mirrored2

sketch14 = body.newObject("Sketcher::SketchObject", "Sketch013")
sketch14.AttachmentSupport = (doc.getObject("XZ_Plane"), [""])
sketch14.MapMode = "FlatFace"
sketch14.AttachmentOffset = App.Placement(Vector(0, 0, -5), App.Rotation())
sketch14.addGeometry([
    Part.LineSegment(Vector(-118, -7, 0), Vector(-118, -2, 0)),
    Part.LineSegment(Vector(-118, -2, 0), Vector(-113, -2, 0)),
    Part.LineSegment(Vector(-113, -2, 0), Vector(-113, -7, 0)),
    Part.LineSegment(Vector(-113, -7, 0), Vector(-118, -7, 0)),
], False)
sketch14.addConstraint([
    Sketcher.Constraint("Coincident", 0, 2, 1, 1),
    Sketcher.Constraint("Coincident", 1, 2, 2, 1),
    Sketcher.Constraint("Coincident", 2, 2, 3, 1),
    Sketcher.Constraint("Coincident", 3, 2, 0, 1),
    Sketcher.Constraint("Vertical", 0),
    Sketcher.Constraint("Horizontal", 1),
    Sketcher.Constraint("Vertical", 2),
    Sketcher.Constraint("Horizontal", 3),
    Sketcher.Constraint("Equal", 3, 0),
    Sketcher.Constraint("DistanceX", 1, 1, 1, 2, 5.0),
    Sketcher.Constraint("DistanceX", 0, 2, -1, 1, 118.450701),
    Sketcher.Constraint("DistanceY", 0, 2, -1, 1, 1.916314),
])
pocket4 = body.newObject("PartDesign::Pocket", "Pocket003")
pocket4.Profile = sketch14
pocket4.Length = 15
pocket4.Reversed = True

sketch15 = body.newObject("Sketcher::SketchObject", "Sketch014")
sketch15.AttachmentSupport = (doc.getObject("YZ_Plane"), [""])
sketch15.MapMode = "FlatFace"
sketch15.AttachmentOffset = App.Placement(Vector(0, 0, 163.846154), App.Rotation())
sketch15.addGeometry(Part.Circle(Vector(-383, 0, 0), Vector(0, 0, 1), 5), False)
sketch15.addConstraint([
    Sketcher.Constraint("PointOnObject", 0, 3, -1),
    Sketcher.Constraint("Diameter", 0, 10.0),
    Sketcher.Constraint("DistanceX", 0, 3, -1, 1, 382.55),
])
pocket5 = body.newObject("PartDesign::Pocket", "Pocket004")
pocket5.Profile = sketch15
pocket5.Length = 38

sketch16 = body.newObject("Sketcher::SketchObject", "Sketch015")
sketch16.AttachmentSupport = (doc.getObject("XZ_Plane"), [""])
sketch16.MapMode = "FlatFace"
sketch16.AttachmentOffset = App.Placement(Vector(0, 0, 450), App.Rotation())
sketch16.addGeometry([
    Part.LineSegment(Vector(-152, 88, 0), Vector(-152, 78, 0)),
    Part.LineSegment(Vector(-152, 78, 0), Vector(152, 78, 0)),
    Part.LineSegment(Vector(152, 78, 0), Vector(152, 88, 0)),
    Part.LineSegment(Vector(152, 88, 0), Vector(-152, 88, 0)),
], False)
sketch16.addConstraint([
    Sketcher.Constraint("Coincident", 0, 2, 1, 1),
    Sketcher.Constraint("Coincident", 1, 2, 2, 1),
    Sketcher.Constraint("Coincident", 2, 2, 3, 1),
    Sketcher.Constraint("Coincident", 3, 2, 0, 1),
    Sketcher.Constraint("Vertical", 0),
    Sketcher.Constraint("Horizontal", 1),
    Sketcher.Constraint("Vertical", 2),
    Sketcher.Constraint("Horizontal", 3),
    Sketcher.Constraint("DistanceY", 0, 2, 0, 1, 10.0),
    Sketcher.Constraint("DistanceX", 1, 1, 1, 2, 303.692308),
    Sketcher.Constraint("DistanceY", -1, 1, 0, 2, 77.501488),
    Sketcher.Constraint("DistanceX", 0, 2, -1, 1, 151.846154),
])
pocket6 = body.newObject("PartDesign::Pocket", "Pocket005")
pocket6.Profile = sketch16
pocket6.Length = 340

sketch17 = body.newObject("Sketcher::SketchObject", "Sketch016")
sketch17.AttachmentSupport = (doc.getObject("XZ_Plane"), [""])
sketch17.MapMode = "FlatFace"
sketch17.AttachmentOffset = App.Placement(Vector(0, 0, 450), App.Rotation())
sketch17.addGeometry([
    Part.LineSegment(Vector(-152, -78, 0), Vector(-152, -88, 0)),
    Part.LineSegment(Vector(-152, -88, 0), Vector(152, -88, 0)),
    Part.LineSegment(Vector(152, -88, 0), Vector(152, -78, 0)),
    Part.LineSegment(Vector(152, -78, 0), Vector(-152, -78, 0)),
], False)
sketch17.addConstraint([
    Sketcher.Constraint("Coincident", 0, 2, 1, 1),
    Sketcher.Constraint("Coincident", 1, 2, 2, 1),
    Sketcher.Constraint("Coincident", 2, 2, 3, 1),
    Sketcher.Constraint("Coincident", 3, 2, 0, 1),
    Sketcher.Constraint("Vertical", 0),
    Sketcher.Constraint("Horizontal", 1),
    Sketcher.Constraint("Vertical", 2),
    Sketcher.Constraint("Horizontal", 3),
    Sketcher.Constraint("DistanceY", 0, 2, 0, 1, 10.0),
    Sketcher.Constraint("DistanceX", 1, 1, 1, 2, 303.692308),
    Sketcher.Constraint("DistanceY", 0, 2, -1, 1, 87.501488),
    Sketcher.Constraint("DistanceX", 0, 2, -1, 1, 151.846154),
])
pocket7 = body.newObject("PartDesign::Pocket", "Pocket006")
pocket7.Profile = sketch17
pocket7.Length = 338

sketch18 = body.newObject("Sketcher::SketchObject", "Sketch017")
sketch18.AttachmentSupport = (doc.getObject("XZ_Plane"), [""])
sketch18.MapMode = "FlatFace"
sketch18.AttachmentOffset = App.Placement(Vector(0, 0, 110), App.Rotation())
sketch18.addGeometry([
    Part.LineSegment(Vector(-22, -185, 0), Vector(22, -185, 0)),
    Part.LineSegment(Vector(22, -185, 0), Vector(34, -166, 0)),
    Part.LineSegment(Vector(34, -166, 0), Vector(-34, -166, 0)),
    Part.LineSegment(Vector(-34, -166, 0), Vector(-22, -185, 0)),
], False)
sketch18.addConstraint([
    Sketcher.Constraint("Coincident", 0, 2, 1, 1),
    Sketcher.Constraint("Coincident", 1, 2, 2, 1),
    Sketcher.Constraint("Coincident", 2, 2, 3, 1),
    Sketcher.Constraint("Coincident", 3, 2, 0, 1),
    Sketcher.Constraint("Horizontal", 0),
    Sketcher.Constraint("Horizontal", 2),
    Sketcher.Constraint("Equal", 1, 3),
    Sketcher.Constraint("DistanceX", 2, 2, 2, 1, 68.800591),
    Sketcher.Constraint("Distance", 1, 22.57772),
    Sketcher.Constraint("DistanceX", 0, 1, 0, 2, 43.914826),
    Sketcher.Constraint("DistanceX", -1, 1, 0, 2, 21.957413),
    Sketcher.Constraint("DistanceY", 0, 2, -1, 1, 185.323053),
])
pad11 = body.newObject("PartDesign::Pad", "Pad010")
pad11.Profile = sketch18
pad11.Length = 10
pad11.Reversed = True

sketch19 = body.newObject("Sketcher::SketchObject", "Sketch018")
sketch19.AttachmentSupport = (doc.getObject("XZ_Plane"), [""])
sketch19.MapMode = "FlatFace"
sketch19.AttachmentOffset = App.Placement(Vector(0, 0, 110), App.Rotation())
sketch19.addGeometry(Part.Circle(Vector(0, -178, 0), Vector(0, 0, 1), 3.6), False)
sketch19.addConstraint([
    Sketcher.Constraint("PointOnObject", 0, 3, -2),
    Sketcher.Constraint("Diameter", 0, 7.288659),
    Sketcher.Constraint("DistanceY", 0, 3, -1, 1, 177.983019),
])
pad12 = body.newObject("PartDesign::Pad", "Pad011")
pad12.Profile = sketch19
pad12.Length = 340

doc.recompute()
